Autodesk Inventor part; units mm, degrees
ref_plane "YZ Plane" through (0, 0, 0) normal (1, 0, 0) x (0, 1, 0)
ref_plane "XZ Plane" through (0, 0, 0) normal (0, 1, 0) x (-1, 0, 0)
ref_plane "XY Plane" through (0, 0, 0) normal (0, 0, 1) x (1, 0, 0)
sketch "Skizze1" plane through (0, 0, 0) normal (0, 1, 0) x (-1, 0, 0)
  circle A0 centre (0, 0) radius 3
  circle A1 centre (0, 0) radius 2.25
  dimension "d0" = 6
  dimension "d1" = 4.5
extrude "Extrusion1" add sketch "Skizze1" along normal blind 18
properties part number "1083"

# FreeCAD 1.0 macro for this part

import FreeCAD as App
import Part
import Sketcher
from FreeCAD import Vector

doc = App.newDocument("Part")
body = doc.addObject("PartDesign::Body", "Body")

# Sketch on XZ plane
sketch1 = body.newObject("Sketcher::SketchObject", "Sketch")
sketch1.AttachmentSupport = (doc.getObject("XZ_Plane"), [""])
sketch1.MapMode = "FlatFace"
sketch1.addGeometry(Part.Circle(Vector(0, 0, 0), Vector(0, 0, 1), 3), False)
sketch1.addGeometry(Part.Circle(Vector(0, 0, 0), Vector(0, 0, 1), 2.2), False)
sketch1.addConstraint(Sketcher.Constraint("Coincident", 0, 3, -1, 1))
sketch1.addConstraint(Sketcher.Constraint("Coincident", 1, 3, -1, 1))
sketch1.addConstraint(Sketcher.Constraint("Diameter", 0, 6.0))
sketch1.addConstraint(Sketcher.Constraint("Diameter", 1, 4.5))
pad1 = body.newObject("PartDesign::Pad", "Pad")
pad1.Profile = sketch1
pad1.Length = 18
pad1.Reversed = True

doc.recompute()
